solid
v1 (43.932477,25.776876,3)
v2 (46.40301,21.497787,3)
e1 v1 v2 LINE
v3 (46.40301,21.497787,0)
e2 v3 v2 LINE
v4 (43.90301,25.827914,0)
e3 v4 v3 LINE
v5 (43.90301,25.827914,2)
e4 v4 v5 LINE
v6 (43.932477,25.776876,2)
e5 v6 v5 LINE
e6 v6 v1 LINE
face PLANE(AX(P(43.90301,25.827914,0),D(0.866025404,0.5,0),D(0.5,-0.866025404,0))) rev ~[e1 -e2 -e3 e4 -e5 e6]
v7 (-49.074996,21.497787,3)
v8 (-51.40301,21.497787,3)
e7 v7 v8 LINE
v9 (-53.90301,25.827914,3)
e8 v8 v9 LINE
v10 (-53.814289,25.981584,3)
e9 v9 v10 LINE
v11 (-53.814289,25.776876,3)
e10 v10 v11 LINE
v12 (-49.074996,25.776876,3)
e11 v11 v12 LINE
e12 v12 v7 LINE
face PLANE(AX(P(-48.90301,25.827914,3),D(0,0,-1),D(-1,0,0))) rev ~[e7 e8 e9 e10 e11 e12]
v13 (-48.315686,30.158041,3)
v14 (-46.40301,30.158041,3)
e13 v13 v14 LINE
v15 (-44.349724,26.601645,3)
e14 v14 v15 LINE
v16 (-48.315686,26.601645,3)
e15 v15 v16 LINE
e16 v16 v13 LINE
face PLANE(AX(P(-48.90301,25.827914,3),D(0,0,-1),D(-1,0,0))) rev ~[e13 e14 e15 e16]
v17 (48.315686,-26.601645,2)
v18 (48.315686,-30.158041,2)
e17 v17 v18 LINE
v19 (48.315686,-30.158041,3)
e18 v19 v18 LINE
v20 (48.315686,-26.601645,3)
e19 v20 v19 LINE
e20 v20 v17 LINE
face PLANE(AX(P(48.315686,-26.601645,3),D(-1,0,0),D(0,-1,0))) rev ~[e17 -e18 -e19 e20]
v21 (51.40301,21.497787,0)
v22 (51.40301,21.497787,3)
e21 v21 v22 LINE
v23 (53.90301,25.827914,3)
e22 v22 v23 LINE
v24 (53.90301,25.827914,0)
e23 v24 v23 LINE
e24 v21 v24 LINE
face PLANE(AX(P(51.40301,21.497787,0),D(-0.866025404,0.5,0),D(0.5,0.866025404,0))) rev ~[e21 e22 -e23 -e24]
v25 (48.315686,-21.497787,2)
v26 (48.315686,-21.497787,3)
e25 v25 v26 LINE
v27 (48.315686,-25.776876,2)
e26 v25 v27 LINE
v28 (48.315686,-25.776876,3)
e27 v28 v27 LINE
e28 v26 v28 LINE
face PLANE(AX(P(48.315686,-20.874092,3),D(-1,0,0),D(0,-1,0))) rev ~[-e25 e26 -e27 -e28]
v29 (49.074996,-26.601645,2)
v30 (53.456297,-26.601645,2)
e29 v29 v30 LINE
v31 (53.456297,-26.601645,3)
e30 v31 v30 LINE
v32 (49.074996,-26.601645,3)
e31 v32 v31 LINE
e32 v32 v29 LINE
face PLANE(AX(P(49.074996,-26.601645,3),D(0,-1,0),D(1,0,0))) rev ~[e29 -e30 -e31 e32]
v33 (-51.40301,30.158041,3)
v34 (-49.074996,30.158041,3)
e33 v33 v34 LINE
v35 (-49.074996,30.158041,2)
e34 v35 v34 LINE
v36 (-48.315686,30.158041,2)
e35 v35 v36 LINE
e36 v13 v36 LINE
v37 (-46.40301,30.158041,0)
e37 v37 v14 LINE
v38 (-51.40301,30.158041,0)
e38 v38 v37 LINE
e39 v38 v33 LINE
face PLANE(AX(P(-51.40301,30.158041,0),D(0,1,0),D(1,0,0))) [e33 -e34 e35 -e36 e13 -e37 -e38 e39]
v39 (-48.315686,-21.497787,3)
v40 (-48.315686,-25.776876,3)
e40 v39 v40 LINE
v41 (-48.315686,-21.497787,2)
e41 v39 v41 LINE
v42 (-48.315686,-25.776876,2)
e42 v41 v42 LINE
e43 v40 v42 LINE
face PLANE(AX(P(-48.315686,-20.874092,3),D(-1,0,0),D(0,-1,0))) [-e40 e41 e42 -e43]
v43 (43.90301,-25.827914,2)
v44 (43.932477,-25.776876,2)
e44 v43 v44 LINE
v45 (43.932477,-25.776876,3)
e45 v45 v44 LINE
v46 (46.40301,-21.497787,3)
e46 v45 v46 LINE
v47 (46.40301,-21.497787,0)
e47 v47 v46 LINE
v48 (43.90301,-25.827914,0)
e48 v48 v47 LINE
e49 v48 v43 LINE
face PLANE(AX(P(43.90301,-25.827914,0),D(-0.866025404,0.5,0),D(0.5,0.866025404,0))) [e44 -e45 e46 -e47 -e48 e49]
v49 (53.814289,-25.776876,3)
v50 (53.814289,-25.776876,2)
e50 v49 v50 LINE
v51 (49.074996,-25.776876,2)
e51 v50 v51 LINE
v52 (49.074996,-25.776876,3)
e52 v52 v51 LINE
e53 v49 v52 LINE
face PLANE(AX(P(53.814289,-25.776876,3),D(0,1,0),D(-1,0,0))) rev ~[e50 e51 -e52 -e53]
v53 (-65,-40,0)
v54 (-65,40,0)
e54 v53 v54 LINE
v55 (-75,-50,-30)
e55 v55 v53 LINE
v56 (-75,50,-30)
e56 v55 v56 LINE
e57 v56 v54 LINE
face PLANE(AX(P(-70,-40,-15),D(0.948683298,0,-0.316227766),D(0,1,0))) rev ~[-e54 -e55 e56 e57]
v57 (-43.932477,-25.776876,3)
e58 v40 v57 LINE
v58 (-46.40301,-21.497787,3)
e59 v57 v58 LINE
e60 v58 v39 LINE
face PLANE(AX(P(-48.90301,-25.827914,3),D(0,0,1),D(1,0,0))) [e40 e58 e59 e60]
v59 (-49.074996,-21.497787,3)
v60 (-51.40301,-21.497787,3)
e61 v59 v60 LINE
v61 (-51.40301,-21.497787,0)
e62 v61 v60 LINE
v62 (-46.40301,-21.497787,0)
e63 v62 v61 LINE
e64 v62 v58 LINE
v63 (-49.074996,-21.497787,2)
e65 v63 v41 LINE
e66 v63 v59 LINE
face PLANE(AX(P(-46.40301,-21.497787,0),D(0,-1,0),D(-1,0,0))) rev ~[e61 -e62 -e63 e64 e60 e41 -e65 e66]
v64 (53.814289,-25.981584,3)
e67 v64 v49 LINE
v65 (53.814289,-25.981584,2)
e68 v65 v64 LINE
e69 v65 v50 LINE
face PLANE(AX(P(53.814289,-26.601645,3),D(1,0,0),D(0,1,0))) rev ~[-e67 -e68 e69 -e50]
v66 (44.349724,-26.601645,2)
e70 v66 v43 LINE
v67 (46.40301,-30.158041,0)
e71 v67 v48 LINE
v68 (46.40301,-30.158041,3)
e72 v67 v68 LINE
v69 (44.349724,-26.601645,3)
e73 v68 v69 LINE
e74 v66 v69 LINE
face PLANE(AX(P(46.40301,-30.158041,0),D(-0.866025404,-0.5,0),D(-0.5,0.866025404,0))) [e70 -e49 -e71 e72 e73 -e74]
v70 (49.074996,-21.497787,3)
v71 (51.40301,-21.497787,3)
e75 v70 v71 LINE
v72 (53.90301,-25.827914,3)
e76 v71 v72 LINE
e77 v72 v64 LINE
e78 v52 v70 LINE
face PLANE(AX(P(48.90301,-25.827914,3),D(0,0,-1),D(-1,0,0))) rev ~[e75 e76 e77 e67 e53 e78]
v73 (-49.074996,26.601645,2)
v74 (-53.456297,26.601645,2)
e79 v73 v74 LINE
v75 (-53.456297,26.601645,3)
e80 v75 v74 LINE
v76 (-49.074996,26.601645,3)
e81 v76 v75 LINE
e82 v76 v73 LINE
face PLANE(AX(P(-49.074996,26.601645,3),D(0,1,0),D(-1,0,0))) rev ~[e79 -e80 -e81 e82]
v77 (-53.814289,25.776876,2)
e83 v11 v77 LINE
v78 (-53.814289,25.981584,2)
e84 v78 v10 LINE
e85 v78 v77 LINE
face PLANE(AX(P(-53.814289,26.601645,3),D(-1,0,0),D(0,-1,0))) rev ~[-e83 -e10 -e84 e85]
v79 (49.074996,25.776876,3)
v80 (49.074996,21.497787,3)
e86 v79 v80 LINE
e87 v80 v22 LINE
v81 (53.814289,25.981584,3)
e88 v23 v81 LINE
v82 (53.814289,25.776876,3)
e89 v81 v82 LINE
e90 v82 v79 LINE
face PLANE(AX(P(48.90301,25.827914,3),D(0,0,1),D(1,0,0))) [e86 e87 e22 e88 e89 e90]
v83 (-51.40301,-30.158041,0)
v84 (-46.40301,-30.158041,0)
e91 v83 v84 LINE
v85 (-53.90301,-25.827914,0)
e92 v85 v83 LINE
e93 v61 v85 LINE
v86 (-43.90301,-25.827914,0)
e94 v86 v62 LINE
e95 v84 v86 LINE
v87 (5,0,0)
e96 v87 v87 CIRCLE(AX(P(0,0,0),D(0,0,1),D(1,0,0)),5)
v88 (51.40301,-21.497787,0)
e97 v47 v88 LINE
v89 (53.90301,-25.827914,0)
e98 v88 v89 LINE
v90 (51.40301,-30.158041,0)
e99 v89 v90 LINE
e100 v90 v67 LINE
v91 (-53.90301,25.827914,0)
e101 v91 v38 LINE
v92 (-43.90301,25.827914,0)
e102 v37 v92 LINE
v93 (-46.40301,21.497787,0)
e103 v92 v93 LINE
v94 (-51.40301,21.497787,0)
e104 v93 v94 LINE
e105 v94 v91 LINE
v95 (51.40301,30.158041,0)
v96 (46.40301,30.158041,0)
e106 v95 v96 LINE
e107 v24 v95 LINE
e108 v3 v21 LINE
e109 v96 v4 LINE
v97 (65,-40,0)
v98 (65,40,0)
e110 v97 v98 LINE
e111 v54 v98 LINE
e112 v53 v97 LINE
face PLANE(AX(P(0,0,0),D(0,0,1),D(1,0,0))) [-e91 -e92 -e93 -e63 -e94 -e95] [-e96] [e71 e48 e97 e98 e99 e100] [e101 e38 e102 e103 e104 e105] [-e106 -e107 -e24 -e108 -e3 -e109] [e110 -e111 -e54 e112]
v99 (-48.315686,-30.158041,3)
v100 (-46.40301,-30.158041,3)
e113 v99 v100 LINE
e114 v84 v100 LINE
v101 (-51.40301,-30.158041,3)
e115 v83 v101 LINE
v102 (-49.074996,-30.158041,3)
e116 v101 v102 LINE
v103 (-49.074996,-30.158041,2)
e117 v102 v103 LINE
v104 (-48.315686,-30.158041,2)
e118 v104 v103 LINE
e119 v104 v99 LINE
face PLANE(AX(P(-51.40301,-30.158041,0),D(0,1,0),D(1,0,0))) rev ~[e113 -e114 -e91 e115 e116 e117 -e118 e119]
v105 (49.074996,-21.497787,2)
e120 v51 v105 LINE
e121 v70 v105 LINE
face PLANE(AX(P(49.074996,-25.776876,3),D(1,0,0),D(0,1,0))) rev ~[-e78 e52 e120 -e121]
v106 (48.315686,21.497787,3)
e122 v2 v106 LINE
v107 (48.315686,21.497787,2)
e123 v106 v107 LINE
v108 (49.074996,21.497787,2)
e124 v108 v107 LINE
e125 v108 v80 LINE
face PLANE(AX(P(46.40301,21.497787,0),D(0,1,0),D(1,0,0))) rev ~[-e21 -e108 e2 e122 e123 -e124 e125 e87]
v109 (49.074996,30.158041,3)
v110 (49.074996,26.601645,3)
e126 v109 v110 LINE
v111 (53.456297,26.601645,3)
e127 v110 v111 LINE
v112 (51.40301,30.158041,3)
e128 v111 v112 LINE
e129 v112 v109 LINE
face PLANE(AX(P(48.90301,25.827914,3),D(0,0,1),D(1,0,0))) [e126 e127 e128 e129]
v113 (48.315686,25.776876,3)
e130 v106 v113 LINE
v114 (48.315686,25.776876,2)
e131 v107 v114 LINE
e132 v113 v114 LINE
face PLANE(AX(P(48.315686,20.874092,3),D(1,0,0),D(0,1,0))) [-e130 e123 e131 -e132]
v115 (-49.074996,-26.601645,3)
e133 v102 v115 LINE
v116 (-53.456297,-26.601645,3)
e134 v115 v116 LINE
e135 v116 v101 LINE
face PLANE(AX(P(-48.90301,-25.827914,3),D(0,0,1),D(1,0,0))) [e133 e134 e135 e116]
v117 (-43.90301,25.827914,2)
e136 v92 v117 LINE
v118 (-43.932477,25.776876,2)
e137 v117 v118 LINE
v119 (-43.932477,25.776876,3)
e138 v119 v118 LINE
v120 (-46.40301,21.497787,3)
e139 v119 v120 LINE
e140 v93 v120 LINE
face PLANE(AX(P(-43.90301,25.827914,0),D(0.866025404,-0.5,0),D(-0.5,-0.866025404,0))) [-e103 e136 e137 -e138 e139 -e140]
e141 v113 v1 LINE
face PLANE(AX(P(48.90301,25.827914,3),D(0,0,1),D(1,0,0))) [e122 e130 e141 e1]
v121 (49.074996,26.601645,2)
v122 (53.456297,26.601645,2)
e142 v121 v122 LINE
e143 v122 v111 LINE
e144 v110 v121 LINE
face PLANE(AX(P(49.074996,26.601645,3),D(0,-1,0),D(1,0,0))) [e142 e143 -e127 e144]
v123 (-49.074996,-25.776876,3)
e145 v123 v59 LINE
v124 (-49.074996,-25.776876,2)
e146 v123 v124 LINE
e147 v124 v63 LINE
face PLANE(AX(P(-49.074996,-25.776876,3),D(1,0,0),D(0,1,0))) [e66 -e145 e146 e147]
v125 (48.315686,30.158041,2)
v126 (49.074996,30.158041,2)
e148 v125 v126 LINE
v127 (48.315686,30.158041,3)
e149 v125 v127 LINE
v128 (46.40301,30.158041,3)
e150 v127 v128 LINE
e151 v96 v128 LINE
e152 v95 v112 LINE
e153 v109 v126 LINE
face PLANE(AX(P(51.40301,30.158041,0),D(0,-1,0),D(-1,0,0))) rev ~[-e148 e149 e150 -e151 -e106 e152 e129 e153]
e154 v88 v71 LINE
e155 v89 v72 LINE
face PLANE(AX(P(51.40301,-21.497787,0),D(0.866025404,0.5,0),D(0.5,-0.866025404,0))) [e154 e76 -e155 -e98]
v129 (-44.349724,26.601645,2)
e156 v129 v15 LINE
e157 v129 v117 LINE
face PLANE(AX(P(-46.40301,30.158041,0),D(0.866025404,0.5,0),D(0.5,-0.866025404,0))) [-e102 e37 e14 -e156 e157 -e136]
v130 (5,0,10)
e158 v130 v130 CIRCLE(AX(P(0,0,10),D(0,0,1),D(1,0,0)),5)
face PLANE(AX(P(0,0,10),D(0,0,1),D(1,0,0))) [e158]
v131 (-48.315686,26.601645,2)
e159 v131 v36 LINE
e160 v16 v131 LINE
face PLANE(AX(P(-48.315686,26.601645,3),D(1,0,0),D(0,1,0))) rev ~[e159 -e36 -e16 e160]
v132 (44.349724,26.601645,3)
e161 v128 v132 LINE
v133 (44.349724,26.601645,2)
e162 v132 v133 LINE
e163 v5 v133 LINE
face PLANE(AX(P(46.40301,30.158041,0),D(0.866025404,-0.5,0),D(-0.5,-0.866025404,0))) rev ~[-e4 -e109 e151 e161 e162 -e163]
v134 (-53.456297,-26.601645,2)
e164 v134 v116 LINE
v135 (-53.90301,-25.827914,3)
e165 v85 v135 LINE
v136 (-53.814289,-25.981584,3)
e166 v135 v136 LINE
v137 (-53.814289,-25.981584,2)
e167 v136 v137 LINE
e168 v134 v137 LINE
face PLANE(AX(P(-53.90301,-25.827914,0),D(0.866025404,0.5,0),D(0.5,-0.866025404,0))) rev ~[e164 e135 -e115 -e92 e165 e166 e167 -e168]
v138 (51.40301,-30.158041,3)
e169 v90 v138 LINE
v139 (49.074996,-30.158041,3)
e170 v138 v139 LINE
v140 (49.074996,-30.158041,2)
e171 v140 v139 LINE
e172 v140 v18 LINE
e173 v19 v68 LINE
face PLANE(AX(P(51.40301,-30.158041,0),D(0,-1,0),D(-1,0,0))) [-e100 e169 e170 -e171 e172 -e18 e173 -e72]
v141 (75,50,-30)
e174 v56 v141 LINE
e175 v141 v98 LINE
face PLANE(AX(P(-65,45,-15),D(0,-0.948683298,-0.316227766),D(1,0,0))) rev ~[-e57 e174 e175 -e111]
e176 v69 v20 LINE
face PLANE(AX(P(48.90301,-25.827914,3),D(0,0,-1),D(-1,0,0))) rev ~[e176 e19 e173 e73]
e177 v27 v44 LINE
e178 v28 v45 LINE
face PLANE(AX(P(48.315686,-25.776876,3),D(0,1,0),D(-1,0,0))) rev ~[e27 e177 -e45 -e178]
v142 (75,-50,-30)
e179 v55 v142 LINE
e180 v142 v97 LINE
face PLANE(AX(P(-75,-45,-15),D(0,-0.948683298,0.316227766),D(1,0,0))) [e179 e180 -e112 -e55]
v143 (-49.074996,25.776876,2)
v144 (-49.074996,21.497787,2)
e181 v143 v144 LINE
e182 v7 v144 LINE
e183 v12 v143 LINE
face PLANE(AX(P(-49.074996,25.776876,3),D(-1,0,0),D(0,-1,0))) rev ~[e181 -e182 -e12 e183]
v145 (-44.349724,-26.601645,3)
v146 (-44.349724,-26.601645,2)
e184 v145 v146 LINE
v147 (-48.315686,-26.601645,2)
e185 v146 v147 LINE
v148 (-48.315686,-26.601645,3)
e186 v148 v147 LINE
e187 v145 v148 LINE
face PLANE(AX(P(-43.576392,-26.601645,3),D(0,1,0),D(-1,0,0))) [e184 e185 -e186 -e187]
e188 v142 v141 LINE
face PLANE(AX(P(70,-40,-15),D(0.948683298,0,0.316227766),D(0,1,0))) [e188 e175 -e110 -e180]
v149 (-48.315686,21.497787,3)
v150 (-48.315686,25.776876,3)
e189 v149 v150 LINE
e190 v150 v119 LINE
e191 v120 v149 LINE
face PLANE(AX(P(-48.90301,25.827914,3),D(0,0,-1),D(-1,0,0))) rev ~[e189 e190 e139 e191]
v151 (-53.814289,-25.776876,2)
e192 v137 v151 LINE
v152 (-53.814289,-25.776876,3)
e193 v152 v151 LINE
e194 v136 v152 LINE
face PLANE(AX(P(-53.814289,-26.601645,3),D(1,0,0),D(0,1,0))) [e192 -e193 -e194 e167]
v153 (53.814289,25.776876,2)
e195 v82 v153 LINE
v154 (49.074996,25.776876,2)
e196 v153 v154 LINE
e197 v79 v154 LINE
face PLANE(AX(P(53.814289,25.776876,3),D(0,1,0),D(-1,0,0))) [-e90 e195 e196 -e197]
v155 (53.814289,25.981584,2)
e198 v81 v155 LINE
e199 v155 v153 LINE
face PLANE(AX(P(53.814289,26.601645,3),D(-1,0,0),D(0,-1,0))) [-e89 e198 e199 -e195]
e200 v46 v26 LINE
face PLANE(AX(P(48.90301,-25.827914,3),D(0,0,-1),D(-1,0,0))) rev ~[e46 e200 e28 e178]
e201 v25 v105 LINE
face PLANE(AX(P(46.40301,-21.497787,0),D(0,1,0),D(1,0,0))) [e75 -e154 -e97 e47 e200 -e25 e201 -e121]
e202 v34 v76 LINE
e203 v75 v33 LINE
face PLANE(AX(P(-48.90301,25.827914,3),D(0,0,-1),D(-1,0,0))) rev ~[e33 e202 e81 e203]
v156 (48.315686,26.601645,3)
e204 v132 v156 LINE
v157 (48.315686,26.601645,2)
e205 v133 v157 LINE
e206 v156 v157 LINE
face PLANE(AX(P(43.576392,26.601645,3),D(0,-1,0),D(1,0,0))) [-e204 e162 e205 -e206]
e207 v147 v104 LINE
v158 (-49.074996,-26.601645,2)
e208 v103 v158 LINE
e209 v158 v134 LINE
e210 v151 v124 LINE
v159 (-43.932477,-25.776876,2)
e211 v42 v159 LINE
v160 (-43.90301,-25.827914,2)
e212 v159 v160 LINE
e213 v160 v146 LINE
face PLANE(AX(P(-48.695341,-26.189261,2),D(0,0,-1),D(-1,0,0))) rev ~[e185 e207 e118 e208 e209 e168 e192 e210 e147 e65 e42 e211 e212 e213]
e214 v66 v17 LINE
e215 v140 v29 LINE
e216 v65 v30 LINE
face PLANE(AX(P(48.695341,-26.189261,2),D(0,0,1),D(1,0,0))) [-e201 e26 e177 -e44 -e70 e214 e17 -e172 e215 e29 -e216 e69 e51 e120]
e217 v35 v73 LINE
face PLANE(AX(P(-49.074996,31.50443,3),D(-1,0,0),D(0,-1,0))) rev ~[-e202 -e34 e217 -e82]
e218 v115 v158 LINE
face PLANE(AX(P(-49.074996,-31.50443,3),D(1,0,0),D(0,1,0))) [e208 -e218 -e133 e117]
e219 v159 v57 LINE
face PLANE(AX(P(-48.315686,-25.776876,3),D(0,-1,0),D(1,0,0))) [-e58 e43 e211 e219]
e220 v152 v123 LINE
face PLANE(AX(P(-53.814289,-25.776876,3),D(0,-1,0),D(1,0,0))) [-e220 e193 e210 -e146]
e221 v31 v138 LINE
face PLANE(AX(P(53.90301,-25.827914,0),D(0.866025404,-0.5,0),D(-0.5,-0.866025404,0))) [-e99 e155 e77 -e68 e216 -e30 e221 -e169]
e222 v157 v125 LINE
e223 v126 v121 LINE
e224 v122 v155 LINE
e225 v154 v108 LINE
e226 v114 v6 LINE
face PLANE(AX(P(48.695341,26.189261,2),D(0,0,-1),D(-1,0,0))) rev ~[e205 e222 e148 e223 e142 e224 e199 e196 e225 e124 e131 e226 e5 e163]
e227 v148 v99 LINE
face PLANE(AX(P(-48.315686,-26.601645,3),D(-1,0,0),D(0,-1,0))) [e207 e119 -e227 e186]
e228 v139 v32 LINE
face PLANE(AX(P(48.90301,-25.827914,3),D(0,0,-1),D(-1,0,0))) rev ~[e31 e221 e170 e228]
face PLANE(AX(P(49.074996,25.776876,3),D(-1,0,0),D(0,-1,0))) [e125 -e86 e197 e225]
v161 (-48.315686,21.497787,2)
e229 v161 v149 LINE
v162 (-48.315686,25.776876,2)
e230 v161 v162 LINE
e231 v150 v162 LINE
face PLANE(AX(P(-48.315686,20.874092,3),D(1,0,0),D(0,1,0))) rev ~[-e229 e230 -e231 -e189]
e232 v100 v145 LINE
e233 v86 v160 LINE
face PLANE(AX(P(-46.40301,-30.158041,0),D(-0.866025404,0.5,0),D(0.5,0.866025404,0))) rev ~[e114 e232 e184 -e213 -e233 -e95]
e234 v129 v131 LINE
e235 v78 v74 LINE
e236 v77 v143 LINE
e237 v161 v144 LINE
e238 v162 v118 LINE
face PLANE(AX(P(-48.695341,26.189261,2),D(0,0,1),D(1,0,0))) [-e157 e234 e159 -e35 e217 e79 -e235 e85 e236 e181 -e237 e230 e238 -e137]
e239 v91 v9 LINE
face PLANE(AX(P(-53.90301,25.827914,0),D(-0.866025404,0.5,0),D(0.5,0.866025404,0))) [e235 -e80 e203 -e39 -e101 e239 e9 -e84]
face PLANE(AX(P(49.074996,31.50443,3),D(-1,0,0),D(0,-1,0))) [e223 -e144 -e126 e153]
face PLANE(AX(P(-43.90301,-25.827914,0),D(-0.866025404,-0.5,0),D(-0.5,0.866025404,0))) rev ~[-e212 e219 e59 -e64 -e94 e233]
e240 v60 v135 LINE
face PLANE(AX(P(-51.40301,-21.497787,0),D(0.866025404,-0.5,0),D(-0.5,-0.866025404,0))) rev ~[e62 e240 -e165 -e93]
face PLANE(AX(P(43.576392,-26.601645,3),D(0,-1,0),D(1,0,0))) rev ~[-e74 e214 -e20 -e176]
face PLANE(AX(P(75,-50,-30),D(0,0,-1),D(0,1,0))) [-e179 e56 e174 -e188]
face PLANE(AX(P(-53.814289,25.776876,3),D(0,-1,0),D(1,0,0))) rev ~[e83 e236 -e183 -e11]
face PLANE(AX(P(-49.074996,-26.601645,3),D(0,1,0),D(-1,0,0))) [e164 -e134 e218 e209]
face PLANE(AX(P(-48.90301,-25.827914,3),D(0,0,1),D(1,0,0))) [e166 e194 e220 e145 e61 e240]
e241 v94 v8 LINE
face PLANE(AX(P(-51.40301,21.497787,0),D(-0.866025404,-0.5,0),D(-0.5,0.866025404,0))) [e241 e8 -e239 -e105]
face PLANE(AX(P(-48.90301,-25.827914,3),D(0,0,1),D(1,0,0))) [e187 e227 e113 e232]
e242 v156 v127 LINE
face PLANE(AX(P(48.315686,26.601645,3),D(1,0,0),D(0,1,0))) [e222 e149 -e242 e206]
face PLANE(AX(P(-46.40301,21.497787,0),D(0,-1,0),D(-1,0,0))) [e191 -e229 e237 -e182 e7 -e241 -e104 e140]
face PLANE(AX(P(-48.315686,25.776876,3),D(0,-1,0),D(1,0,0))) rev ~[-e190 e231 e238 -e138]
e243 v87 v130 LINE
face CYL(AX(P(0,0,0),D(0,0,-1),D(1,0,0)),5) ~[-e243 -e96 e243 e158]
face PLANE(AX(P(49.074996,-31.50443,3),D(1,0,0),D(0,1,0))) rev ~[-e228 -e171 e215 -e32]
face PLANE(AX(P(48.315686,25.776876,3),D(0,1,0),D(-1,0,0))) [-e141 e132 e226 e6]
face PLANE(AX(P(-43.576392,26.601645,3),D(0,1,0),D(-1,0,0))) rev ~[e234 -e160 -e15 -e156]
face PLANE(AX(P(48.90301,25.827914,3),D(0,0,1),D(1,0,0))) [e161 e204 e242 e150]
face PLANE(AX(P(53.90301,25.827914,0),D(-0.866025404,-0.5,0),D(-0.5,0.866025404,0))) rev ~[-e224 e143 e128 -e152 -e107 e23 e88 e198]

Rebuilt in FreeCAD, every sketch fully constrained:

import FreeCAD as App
import Part
import Sketcher
Q = App.Units.Quantity


def edges_at(feature, points):
    """Names of the edges that pass closest to the given points."""
    edges = feature.Shape.Edges
    near = lambda p: min(range(len(edges)), key=lambda i: edges[i].distToShape(Part.Vertex(*p))[0])
    return sorted({f"Edge{near(p) + 1}" for p in points})

doc = App.newDocument("Part")
body = doc.addObject("PartDesign::Body", "Body")

sketch1 = body.newObject("Sketcher::SketchObject", "Sketch")
sketch1.AttachmentSupport = (doc.getObject("XY_Plane"), [""])
sketch1.MapMode = "FlatFace"
sketch1.addGeometry(Part.LineSegment(App.Vector(-75, 50, 0), App.Vector(-75, -50, 0)), False)
sketch1.addGeometry(Part.LineSegment(App.Vector(-75, -50, 0), App.Vector(75, -50, 0)), False)
sketch1.addGeometry(Part.LineSegment(App.Vector(75, -50, 0), App.Vector(75, 50, 0)), False)
sketch1.addGeometry(Part.LineSegment(App.Vector(75, 50, 0), App.Vector(-75, 50, 0)), False)
sketch1.addConstraint(Sketcher.Constraint("Coincident", 0, 2, 1, 1))
sketch1.addConstraint(Sketcher.Constraint("Coincident", 1, 2, 2, 1))
sketch1.addConstraint(Sketcher.Constraint("Coincident", 2, 2, 3, 1))
sketch1.addConstraint(Sketcher.Constraint("Coincident", 3, 2, 0, 1))
sketch1.addConstraint(Sketcher.Constraint("Vertical", 0))
sketch1.addConstraint(Sketcher.Constraint("Horizontal", 1))
sketch1.addConstraint(Sketcher.Constraint("Vertical", 2))
sketch1.addConstraint(Sketcher.Constraint("Horizontal", 3))
sketch1.addConstraint(Sketcher.Constraint("Symmetric", 0, 2, 2, 2, -1, 1))
sketch1.addConstraint(Sketcher.Constraint("DistanceX", 1, 1, 1, 2, Q("150 mm")))
sketch1.addConstraint(Sketcher.Constraint("DistanceY", 0, 2, 0, 1, Q("100 mm")))
pad1 = body.newObject("PartDesign::Pad", "Pad")
pad1.Profile = sketch1
pad1.Length = 50
pad1.Reversed = True
doc.recompute()

chamfer = body.newObject("PartDesign::Chamfer", "Chamfer")
chamfer.Base = (pad1, edges_at(pad1, [(0, -50, 0)]))
chamfer.ChamferType = "Two distances"
chamfer.Size = 30
chamfer.Size2 = 10
doc.recompute()

chamfer2 = body.newObject("PartDesign::Chamfer", "Chamfer001")
chamfer2.Base = (chamfer, edges_at(chamfer, [(-75, 5, 0)]))
chamfer2.ChamferType = "Two distances"
chamfer2.Size = 30
chamfer2.Size2 = 10
doc.recompute()

chamfer3 = body.newObject("PartDesign::Chamfer", "Chamfer002")
chamfer3.Base = (chamfer2, edges_at(chamfer2, [(5, 50, 0)]))
chamfer3.ChamferType = "Two distances"
chamfer3.Size = 30
chamfer3.Size2 = 10
doc.recompute()

chamfer4 = body.newObject("PartDesign::Chamfer", "Chamfer003")
chamfer4.Base = (chamfer3, edges_at(chamfer3, [(75, 0, 0)]))
chamfer4.ChamferType = "Two distances"
chamfer4.Size = 30
chamfer4.Size2 = 10

sketch2 = body.newObject("Sketcher::SketchObject", "Sketch001")
sketch2.AttachmentSupport = (doc.getObject("YZ_Plane"), [""])
sketch2.MapMode = "FlatFace"
sketch2.AttachmentOffset = App.Placement(App.Vector(0, 0, 75), App.Rotation())
sketch2.addGeometry(Part.LineSegment(App.Vector(50, -30, 0), App.Vector(-50, -30, 0)), False)
sketch2.addGeometry(Part.LineSegment(App.Vector(-50, -30, 0), App.Vector(-82, -66, 0)), False)
sketch2.addGeometry(Part.LineSegment(App.Vector(-82, -66, 0), App.Vector(63, -81, 0)), False)
sketch2.addGeometry(Part.LineSegment(App.Vector(63, -81, 0), App.Vector(50, -30, 0)), False)
sketch2.addConstraint(Sketcher.Constraint("Coincident", 0, 2, 1, 1))
sketch2.addConstraint(Sketcher.Constraint("Coincident", 1, 2, 2, 1))
sketch2.addConstraint(Sketcher.Constraint("Coincident", 2, 2, 3, 1))
sketch2.addConstraint(Sketcher.Constraint("Coincident", 3, 2, 0, 1))
sketch2.addConstraint(Sketcher.Constraint("Horizontal", 0))
sketch2.addConstraint(Sketcher.Constraint("DistanceX", 0, 2, 0, 1, Q("100 mm")))
sketch2.addConstraint(Sketcher.Constraint("DistanceX", 0, 2, -1, 1, Q("50 mm")))
sketch2.addConstraint(Sketcher.Constraint("DistanceY", 0, 2, -1, 1, Q("30 mm")))
sketch2.addConstraint(Sketcher.Constraint("Distance", 2, Q("145.471799 mm")))
sketch2.addConstraint(Sketcher.Constraint("Distance", 1, Q("48.031629 mm")))
sketch2.addConstraint(Sketcher.Constraint("Distance", 3, Q("52.868591 mm")))
sketch2.addConstraint(Sketcher.Constraint("DistanceY", 1, 2, -1, 1, Q("65.83849 mm")))
pocket1 = body.newObject("PartDesign::Pocket", "Pocket")
pocket1.Profile = sketch2
pocket1.Length = 282

sketch3 = body.newObject("Sketcher::SketchObject", "Sketch002")
sketch3.AttachmentSupport = (doc.getObject("XY_Plane"), [""])
sketch3.MapMode = "FlatFace"
sketch3.addGeometry(Part.LineSegment(App.Vector(-44, -26, 0), App.Vector(-46, -21, 0)), False)
sketch3.addGeometry(Part.LineSegment(App.Vector(-46, -21, 0), App.Vector(-51, -21, 0)), False)
sketch3.addGeometry(Part.LineSegment(App.Vector(-51, -21, 0), App.Vector(-54, -26, 0)), False)
sketch3.addGeometry(Part.LineSegment(App.Vector(-54, -26, 0), App.Vector(-51, -30, 0)), False)
sketch3.addGeometry(Part.LineSegment(App.Vector(-51, -30, 0), App.Vector(-46, -30, 0)), False)
sketch3.addGeometry(Part.LineSegment(App.Vector(-46, -30, 0), App.Vector(-44, -26, 0)), False)
sketch3.addGeometry(Part.LineSegment(App.Vector(44, 26, 0), App.Vector(46, 21, 0)), False)
sketch3.addGeometry(Part.LineSegment(App.Vector(46, 21, 0), App.Vector(51, 21, 0)), False)
sketch3.addGeometry(Part.LineSegment(App.Vector(51, 21, 0), App.Vector(54, 26, 0)), False)
sketch3.addGeometry(Part.LineSegment(App.Vector(54, 26, 0), App.Vector(51, 30, 0)), False)
sketch3.addGeometry(Part.LineSegment(App.Vector(51, 30, 0), App.Vector(46, 30, 0)), False)
sketch3.addGeometry(Part.LineSegment(App.Vector(46, 30, 0), App.Vector(44, 26, 0)), False)
sketch3.addGeometry(Part.LineSegment(App.Vector(44, -26, 0), App.Vector(46, -30, 0)), False)
sketch3.addGeometry(Part.LineSegment(App.Vector(46, -30, 0), App.Vector(51, -30, 0)), False)
sketch3.addGeometry(Part.LineSegment(App.Vector(51, -30, 0), App.Vector(54, -26, 0)), False)
sketch3.addGeometry(Part.LineSegment(App.Vector(54, -26, 0), App.Vector(51, -21, 0)), False)
sketch3.addGeometry(Part.LineSegment(App.Vector(51, -21, 0), App.Vector(46, -21, 0)), False)
sketch3.addGeometry(Part.LineSegment(App.Vector(46, -21, 0), App.Vector(44, -26, 0)), False)
sketch3.addGeometry(Part.LineSegment(App.Vector(-51, 21, 0), App.Vector(-46, 21, 0)), False)
sketch3.addGeometry(Part.LineSegment(App.Vector(-46, 21, 0), App.Vector(-44, 26, 0)), False)
sketch3.addGeometry(Part.LineSegment(App.Vector(-44, 26, 0), App.Vector(-46, 30, 0)), False)
sketch3.addGeometry(Part.LineSegment(App.Vector(-46, 30, 0), App.Vector(-51, 30, 0)), False)
sketch3.addGeometry(Part.LineSegment(App.Vector(-51, 30, 0), App.Vector(-54, 26, 0)), False)
sketch3.addGeometry(Part.LineSegment(App.Vector(-54, 26, 0), App.Vector(-51, 21, 0)), False)
sketch3.addConstraint(Sketcher.Constraint("Coincident", 0, 2, 1, 1))
sketch3.addConstraint(Sketcher.Constraint("Coincident", 1, 2, 2, 1))
sketch3.addConstraint(Sketcher.Constraint("Coincident", 2, 2, 3, 1))
sketch3.addConstraint(Sketcher.Constraint("Coincident", 3, 2, 4, 1))
sketch3.addConstraint(Sketcher.Constraint("Coincident", 4, 2, 5, 1))
sketch3.addConstraint(Sketcher.Constraint("Coincident", 5, 2, 0, 1))
sketch3.addConstraint(Sketcher.Constraint("Coincident", 6, 2, 7, 1))
sketch3.addConstraint(Sketcher.Constraint("Coincident", 7, 2, 8, 1))
sketch3.addConstraint(Sketcher.Constraint("Coincident", 8, 2, 9, 1))
sketch3.addConstraint(Sketcher.Constraint("Coincident", 9, 2, 10, 1))
sketch3.addConstraint(Sketcher.Constraint("Coincident", 10, 2, 11, 1))
sketch3.addConstraint(Sketcher.Constraint("Coincident", 11, 2, 6, 1))
sketch3.addConstraint(Sketcher.Constraint("Coincident", 12, 2, 13, 1))
sketch3.addConstraint(Sketcher.Constraint("Coincident", 13, 2, 14, 1))
sketch3.addConstraint(Sketcher.Constraint("Coincident", 14, 2, 15, 1))
sketch3.addConstraint(Sketcher.Constraint("Coincident", 15, 2, 16, 1))
sketch3.addConstraint(Sketcher.Constraint("Coincident", 16, 2, 17, 1))
sketch3.addConstraint(Sketcher.Constraint("Coincident", 17, 2, 12, 1))
sketch3.addConstraint(Sketcher.Constraint("Coincident", 18, 2, 19, 1))
sketch3.addConstraint(Sketcher.Constraint("Coincident", 19, 2, 20, 1))
sketch3.addConstraint(Sketcher.Constraint("Coincident", 20, 2, 21, 1))
sketch3.addConstraint(Sketcher.Constraint("Coincident", 21, 2, 22, 1))
sketch3.addConstraint(Sketcher.Constraint("Coincident", 22, 2, 23, 1))
sketch3.addConstraint(Sketcher.Constraint("Coincident", 23, 2, 18, 1))
sketch3.addConstraint(Sketcher.Constraint("Horizontal", 1))
sketch3.addConstraint(Sketcher.Constraint("Horizontal", 4))
sketch3.addConstraint(Sketcher.Constraint("Horizontal", 7))
sketch3.addConstraint(Sketcher.Constraint("Horizontal", 10))
sketch3.addConstraint(Sketcher.Constraint("Horizontal", 13))
sketch3.addConstraint(Sketcher.Constraint("Horizontal", 16))
sketch3.addConstraint(Sketcher.Constraint("Horizontal", 18))
sketch3.addConstraint(Sketcher.Constraint("Horizontal", 21))
sketch3.addConstraint(Sketcher.Constraint("Symmetric", 0, 2, 6, 2, -1, 1))
sketch3.addConstraint(Sketcher.Constraint("Symmetric", 2, 2, 8, 2, -1, 1))
sketch3.addConstraint(Sketcher.Constraint("Symmetric", 3, 2, 9, 2, -1, 1))
sketch3.addConstraint(Sketcher.Constraint("Symmetric", 5, 2, 11, 2, -1, 1))
sketch3.addConstraint(Sketcher.Constraint("Symmetric", 16, 2, 18, 2, -1, 1))
sketch3.addConstraint(Sketcher.Constraint("Symmetric", 17, 2, 19, 2, -1, 1))
sketch3.addConstraint(Sketcher.Constraint("Symmetric", 12, 2, 20, 2, -1, 1))
sketch3.addConstraint(Sketcher.Constraint("Symmetric", 14, 2, 22, 2, -1, 1))
sketch3.addConstraint(Sketcher.Constraint("Symmetric", 4, 2, 12, 2, -2))
sketch3.addConstraint(Sketcher.Constraint("Symmetric", 2, 2, 14, 2, -2))
sketch3.addConstraint(Sketcher.Constraint("Symmetric", 1, 2, 15, 2, -2))
sketch3.addConstraint(Sketcher.Constraint("Symmetric", 5, 2, 17, 2, -2))
sketch3.addConstraint(Sketcher.Constraint("Parallel", 0, 3))
sketch3.addConstraint(Sketcher.Constraint("Parallel", 2, 5))
sketch3.addConstraint(Sketcher.Constraint("Parallel", 5, 8))
sketch3.addConstraint(Sketcher.Constraint("Parallel", 8, 11))
sketch3.addConstraint(Sketcher.Constraint("Parallel", 9, 12))
sketch3.addConstraint(Sketcher.Constraint("Parallel", 11, 14))
sketch3.addConstraint(Sketcher.Constraint("Parallel", 14, 17))
sketch3.addConstraint(Sketcher.Constraint("Parallel", 19, 22))
sketch3.addConstraint(Sketcher.Constraint("Parallel", 20, 23))
sketch3.addConstraint(Sketcher.Constraint("Horizontal", 2, 2, 5, 2))
sketch3.addConstraint(Sketcher.Constraint("Vertical", 1, 2, 3, 2))
sketch3.addConstraint(Sketcher.Constraint("DistanceX", 1, 2, 1, 1, Q("5 mm")))
sketch3.addConstraint(Sketcher.Constraint("Angle", 0, Q("120 deg")))
sketch3.addConstraint(Sketcher.Constraint("Distance", 0, Q("5 mm")))
sketch3.addConstraint(Sketcher.Constraint("DistanceY", 5, 2, 6, 2, Q("47.325702 mm")))
sketch3.addConstraint(Sketcher.Constraint("DistanceX", 0, 2, -1, 1, Q("46.40301 mm")))
pad2 = body.newObject("PartDesign::Pad", "Pad001")
pad2.Profile = sketch3
pad2.Length = 3

sketch4 = body.newObject("Sketcher::SketchObject", "Sketch003")
sketch4.AttachmentSupport = (doc.getObject("XY_Plane"), [""])
sketch4.MapMode = "FlatFace"
sketch4.AttachmentOffset = App.Placement(App.Vector(0, 0, 3), App.Rotation())
sketch4.addGeometry(Part.LineSegment(App.Vector(-48.3, -20.9, 0), App.Vector(-49.1, -20.9, 0)), False)
sketch4.addGeometry(Part.LineSegment(App.Vector(-49.1, -20.9, 0), App.Vector(-49.1, -25.8, 0)), False)
sketch4.addGeometry(Part.LineSegment(App.Vector(-49.1, -25.8, 0), App.Vector(-53.8, -25.8, 0)), False)
sketch4.addGeometry(Part.LineSegment(App.Vector(-53.8, -25.8, 0), App.Vector(-53.8, -26.6, 0)), False)
sketch4.addGeometry(Part.LineSegment(App.Vector(-53.8, -26.6, 0), App.Vector(-49.1, -26.6, 0)), False)
sketch4.addGeometry(Part.LineSegment(App.Vector(-49.1, -26.6, 0), App.Vector(-49.1, -31.5, 0)), False)
sketch4.addGeometry(Part.LineSegment(App.Vector(-49.1, -31.5, 0), App.Vector(-48.3, -31.5, 0)), False)
sketch4.addGeometry(Part.LineSegment(App.Vector(-48.3, -31.5, 0), App.Vector(-48.3, -26.6, 0)), False)
sketch4.addGeometry(Part.LineSegment(App.Vector(-48.3, -26.6, 0), App.Vector(-43.6, -26.6, 0)), False)
sketch4.addGeometry(Part.LineSegment(App.Vector(-43.6, -26.6, 0), App.Vector(-43.6, -25.8, 0)), False)
sketch4.addGeometry(Part.LineSegment(App.Vector(-43.6, -25.8, 0), App.Vector(-48.3, -25.8, 0)), False)
sketch4.addGeometry(Part.LineSegment(App.Vector(-48.3, -25.8, 0), App.Vector(-48.3, -20.9, 0)), False)
sketch4.addGeometry(Part.LineSegment(App.Vector(48.3, -26.6, 0), App.Vector(48.3, -31.5, 0)), False)
sketch4.addGeometry(Part.LineSegment(App.Vector(48.3, -31.5, 0), App.Vector(49.1, -31.5, 0)), False)
sketch4.addGeometry(Part.LineSegment(App.Vector(49.1, -31.5, 0), App.Vector(49.1, -26.6, 0)), False)
sketch4.addGeometry(Part.LineSegment(App.Vector(49.1, -26.6, 0), App.Vector(53.8, -26.6, 0)), False)
sketch4.addGeometry(Part.LineSegment(App.Vector(53.8, -26.6, 0), App.Vector(53.8, -25.8, 0)), False)
sketch4.addGeometry(Part.LineSegment(App.Vector(53.8, -25.8, 0), App.Vector(49.1, -25.8, 0)), False)
sketch4.addGeometry(Part.LineSegment(App.Vector(49.1, -25.8, 0), App.Vector(49.1, -20.9, 0)), False)
sketch4.addGeometry(Part.LineSegment(App.Vector(49.1, -20.9, 0), App.Vector(48.3, -20.9, 0)), False)
sketch4.addGeometry(Part.LineSegment(App.Vector(48.3, -20.9, 0), App.Vector(48.3, -25.8, 0)), False)
sketch4.addGeometry(Part.LineSegment(App.Vector(48.3, -25.8, 0), App.Vector(43.6, -25.8, 0)), False)
sketch4.addGeometry(Part.LineSegment(App.Vector(43.6, -25.8, 0), App.Vector(43.6, -26.6, 0)), False)
sketch4.addGeometry(Part.LineSegment(App.Vector(43.6, -26.6, 0), App.Vector(48.3, -26.6, 0)), False)
sketch4.addGeometry(Part.LineSegment(App.Vector(-48.3, 26.6, 0), App.Vector(-48.3, 31.5, 0)), False)
sketch4.addGeometry(Part.LineSegment(App.Vector(-48.3, 31.5, 0), App.Vector(-49.1, 31.5, 0)), False)
sketch4.addGeometry(Part.LineSegment(App.Vector(-49.1, 31.5, 0), App.Vector(-49.1, 26.6, 0)), False)
sketch4.addGeometry(Part.LineSegment(App.Vector(-49.1, 26.6, 0), App.Vector(-53.8, 26.6, 0)), False)
sketch4.addGeometry(Part.LineSegment(App.Vector(-53.8, 26.6, 0), App.Vector(-53.8, 25.8, 0)), False)
sketch4.addGeometry(Part.LineSegment(App.Vector(-53.8, 25.8, 0), App.Vector(-49.1, 25.8, 0)), False)
sketch4.addGeometry(Part.LineSegment(App.Vector(-49.1, 25.8, 0), App.Vector(-49.1, 20.9, 0)), False)
sketch4.addGeometry(Part.LineSegment(App.Vector(-49.1, 20.9, 0), App.Vector(-48.3, 20.9, 0)), False)
sketch4.addGeometry(Part.LineSegment(App.Vector(-48.3, 20.9, 0), App.Vector(-48.3, 25.8, 0)), False)
sketch4.addGeometry(Part.LineSegment(App.Vector(-48.3, 25.8, 0), App.Vector(-43.6, 25.8, 0)), False)
sketch4.addGeometry(Part.LineSegment(App.Vector(-43.6, 25.8, 0), App.Vector(-43.6, 26.6, 0)), False)
sketch4.addGeometry(Part.LineSegment(App.Vector(-43.6, 26.6, 0), App.Vector(-48.3, 26.6, 0)), False)
sketch4.addGeometry(Part.LineSegment(App.Vector(48.3, 20.9, 0), App.Vector(49.1, 20.9, 0)), False)
sketch4.addGeometry(Part.LineSegment(App.Vector(49.1, 20.9, 0), App.Vector(49.1, 25.8, 0)), False)
sketch4.addGeometry(Part.LineSegment(App.Vector(49.1, 25.8, 0), App.Vector(53.8, 25.8, 0)), False)
sketch4.addGeometry(Part.LineSegment(App.Vector(53.8, 25.8, 0), App.Vector(53.8, 26.6, 0)), False)
sketch4.addGeometry(Part.LineSegment(App.Vector(53.8, 26.6, 0), App.Vector(49.1, 26.6, 0)), False)
sketch4.addGeometry(Part.LineSegment(App.Vector(49.1, 26.6, 0), App.Vector(49.1, 31.5, 0)), False)
sketch4.addGeometry(Part.LineSegment(App.Vector(49.1, 31.5, 0), App.Vector(48.3, 31.5, 0)), False)
sketch4.addGeometry(Part.LineSegment(App.Vector(48.3, 31.5, 0), App.Vector(48.3, 26.6, 0)), False)
sketch4.addGeometry(Part.LineSegment(App.Vector(48.3, 26.6, 0), App.Vector(43.6, 26.6, 0)), False)
sketch4.addGeometry(Part.LineSegment(App.Vector(43.6, 26.6, 0), App.Vector(43.6, 25.8, 0)), False)
sketch4.addGeometry(Part.LineSegment(App.Vector(43.6, 25.8, 0), App.Vector(48.3, 25.8, 0)), False)
sketch4.addGeometry(Part.LineSegment(App.Vector(48.3, 25.8, 0), App.Vector(48.3, 20.9, 0)), False)
sketch4.addConstraint(Sketcher.Constraint("Coincident", 0, 2, 1, 1))
sketch4.addConstraint(Sketcher.Constraint("Coincident", 1, 2, 2, 1))
sketch4.addConstraint(Sketcher.Constraint("Coincident", 2, 2, 3, 1))
sketch4.addConstraint(Sketcher.Constraint("Coincident", 3, 2, 4, 1))
sketch4.addConstraint(Sketcher.Constraint("Coincident", 4, 2, 5, 1))
sketch4.addConstraint(Sketcher.Constraint("Coincident", 5, 2, 6, 1))
sketch4.addConstraint(Sketcher.Constraint("Coincident", 6, 2, 7, 1))
sketch4.addConstraint(Sketcher.Constraint("Coincident", 7, 2, 8, 1))
sketch4.addConstraint(Sketcher.Constraint("Coincident", 8, 2, 9, 1))
sketch4.addConstraint(Sketcher.Constraint("Coincident", 9, 2, 10, 1))
sketch4.addConstraint(Sketcher.Constraint("Coincident", 10, 2, 11, 1))
sketch4.addConstraint(Sketcher.Constraint("Coincident", 11, 2, 0, 1))
sketch4.addConstraint(Sketcher.Constraint("Coincident", 12, 2, 13, 1))
sketch4.addConstraint(Sketcher.Constraint("Coincident", 13, 2, 14, 1))
sketch4.addConstraint(Sketcher.Constraint("Coincident", 14, 2, 15, 1))
sketch4.addConstraint(Sketcher.Constraint("Coincident", 15, 2, 16, 1))
sketch4.addConstraint(Sketcher.Constraint("Coincident", 16, 2, 17, 1))
sketch4.addConstraint(Sketcher.Constraint("Coincident", 17, 2, 18, 1))
sketch4.addConstraint(Sketcher.Constraint("Coincident", 18, 2, 19, 1))
sketch4.addConstraint(Sketcher.Constraint("Coincident", 19, 2, 20, 1))
sketch4.addConstraint(Sketcher.Constraint("Coincident", 20, 2, 21, 1))
sketch4.addConstraint(Sketcher.Constraint("Coincident", 21, 2, 22, 1))
sketch4.addConstraint(Sketcher.Constraint("Coincident", 22, 2, 23, 1))
sketch4.addConstraint(Sketcher.Constraint("Coincident", 23, 2, 12, 1))
sketch4.addConstraint(Sketcher.Constraint("Coincident", 24, 2, 25, 1))
sketch4.addConstraint(Sketcher.Constraint("Coincident", 25, 2, 26, 1))
sketch4.addConstraint(Sketcher.Constraint("Coincident", 26, 2, 27, 1))
sketch4.addConstraint(Sketcher.Constraint("Coincident", 27, 2, 28, 1))
sketch4.addConstraint(Sketcher.Constraint("Coincident", 28, 2, 29, 1))
sketch4.addConstraint(Sketcher.Constraint("Coincident", 29, 2, 30, 1))
sketch4.addConstraint(Sketcher.Constraint("Coincident", 30, 2, 31, 1))
sketch4.addConstraint(Sketcher.Constraint("Coincident", 31, 2, 32, 1))
sketch4.addConstraint(Sketcher.Constraint("Coincident", 32, 2, 33, 1))
sketch4.addConstraint(Sketcher.Constraint("Coincident", 33, 2, 34, 1))
sketch4.addConstraint(Sketcher.Constraint("Coincident", 34, 2, 35, 1))
sketch4.addConstraint(Sketcher.Constraint("Coincident", 35, 2, 24, 1))
sketch4.addConstraint(Sketcher.Constraint("Coincident", 36, 2, 37, 1))
sketch4.addConstraint(Sketcher.Constraint("Coincident", 37, 2, 38, 1))
sketch4.addConstraint(Sketcher.Constraint("Coincident", 38, 2, 39, 1))
sketch4.addConstraint(Sketcher.Constraint("Coincident", 39, 2, 40, 1))
sketch4.addConstraint(Sketcher.Constraint("Coincident", 40, 2, 41, 1))
sketch4.addConstraint(Sketcher.Constraint("Coincident", 41, 2, 42, 1))
sketch4.addConstraint(Sketcher.Constraint("Coincident", 42, 2, 43, 1))
sketch4.addConstraint(Sketcher.Constraint("Coincident", 43, 2, 44, 1))
sketch4.addConstraint(Sketcher.Constraint("Coincident", 44, 2, 45, 1))
sketch4.addConstraint(Sketcher.Constraint("Coincident", 45, 2, 46, 1))
sketch4.addConstraint(Sketcher.Constraint("Coincident", 46, 2, 47, 1))
sketch4.addConstraint(Sketcher.Constraint("Coincident", 47, 2, 36, 1))
sketch4.addConstraint(Sketcher.Constraint("Horizontal", 0))
sketch4.addConstraint(Sketcher.Constraint("Vertical", 1))
sketch4.addConstraint(Sketcher.Constraint("Horizontal", 2))
sketch4.addConstraint(Sketcher.Constraint("Vertical", 3))
sketch4.addConstraint(Sketcher.Constraint("Horizontal", 4))
sketch4.addConstraint(Sketcher.Constraint("Vertical", 5))
sketch4.addConstraint(Sketcher.Constraint("Horizontal", 6))
sketch4.addConstraint(Sketcher.Constraint("Vertical", 7))
sketch4.addConstraint(Sketcher.Constraint("Horizontal", 8))
sketch4.addConstraint(Sketcher.Constraint("Vertical", 9))
sketch4.addConstraint(Sketcher.Constraint("Horizontal", 10))
sketch4.addConstraint(Sketcher.Constraint("Vertical", 11))
sketch4.addConstraint(Sketcher.Constraint("Vertical", 12))
sketch4.addConstraint(Sketcher.Constraint("Horizontal", 13))
sketch4.addConstraint(Sketcher.Constraint("Vertical", 14))
sketch4.addConstraint(Sketcher.Constraint("Horizontal", 15))
sketch4.addConstraint(Sketcher.Constraint("Vertical", 16))
sketch4.addConstraint(Sketcher.Constraint("Horizontal", 17))
sketch4.addConstraint(Sketcher.Constraint("Vertical", 18))
sketch4.addConstraint(Sketcher.Constraint("Horizontal", 19))
sketch4.addConstraint(Sketcher.Constraint("Vertical", 20))
sketch4.addConstraint(Sketcher.Constraint("Horizontal", 21))
sketch4.addConstraint(Sketcher.Constraint("Vertical", 22))
sketch4.addConstraint(Sketcher.Constraint("Horizontal", 23))
sketch4.addConstraint(Sketcher.Constraint("Vertical", 24))
sketch4.addConstraint(Sketcher.Constraint("Horizontal", 25))
sketch4.addConstraint(Sketcher.Constraint("Vertical", 26))
sketch4.addConstraint(Sketcher.Constraint("Horizontal", 27))
sketch4.addConstraint(Sketcher.Constraint("Vertical", 28))
sketch4.addConstraint(Sketcher.Constraint("Horizontal", 29))
sketch4.addConstraint(Sketcher.Constraint("Vertical", 30))
sketch4.addConstraint(Sketcher.Constraint("Horizontal", 31))
sketch4.addConstraint(Sketcher.Constraint("Vertical", 32))
sketch4.addConstraint(Sketcher.Constraint("Horizontal", 33))
sketch4.addConstraint(Sketcher.Constraint("Vertical", 34))
sketch4.addConstraint(Sketcher.Constraint("Horizontal", 35))
sketch4.addConstraint(Sketcher.Constraint("Horizontal", 36))
sketch4.addConstraint(Sketcher.Constraint("Vertical", 37))
sketch4.addConstraint(Sketcher.Constraint("Horizontal", 38))
sketch4.addConstraint(Sketcher.Constraint("Vertical", 39))
sketch4.addConstraint(Sketcher.Constraint("Horizontal", 40))
sketch4.addConstraint(Sketcher.Constraint("Vertical", 41))
sketch4.addConstraint(Sketcher.Constraint("Horizontal", 42))
sketch4.addConstraint(Sketcher.Constraint("Vertical", 43))
sketch4.addConstraint(Sketcher.Constraint("Horizontal", 44))
sketch4.addConstraint(Sketcher.Constraint("Vertical", 45))
sketch4.addConstraint(Sketcher.Constraint("Horizontal", 46))
sketch4.addConstraint(Sketcher.Constraint("Vertical", 47))
sketch4.addConstraint(Sketcher.Constraint("Symmetric", 12, 2, 24, 2, -1, 1))
sketch4.addConstraint(Sketcher.Constraint("Symmetric", 14, 2, 26, 2, -1, 1))
sketch4.addConstraint(Sketcher.Constraint("Symmetric", 16, 2, 28, 2, -1, 1))
sketch4.addConstraint(Sketcher.Constraint("Symmetric", 18, 2, 30, 2, -1, 1))
sketch4.addConstraint(Sketcher.Constraint("Symmetric", 20, 2, 32, 2, -1, 1))
sketch4.addConstraint(Sketcher.Constraint("Symmetric", 22, 2, 34, 2, -1, 1))
sketch4.addConstraint(Sketcher.Constraint("Symmetric", 0, 2, 36, 2, -1, 1))
sketch4.addConstraint(Sketcher.Constraint("Symmetric", 2, 2, 38, 2, -1, 1))
sketch4.addConstraint(Sketcher.Constraint("Symmetric", 4, 2, 40, 2, -1, 1))
sketch4.addConstraint(Sketcher.Constraint("Symmetric", 6, 2, 42, 2, -1, 1))
sketch4.addConstraint(Sketcher.Constraint("Symmetric", 8, 2, 44, 2, -1, 1))
sketch4.addConstraint(Sketcher.Constraint("Symmetric", 10, 2, 46, 2, -1, 1))
sketch4.addConstraint(Sketcher.Constraint("Symmetric", 6, 2, 12, 2, -2))
sketch4.addConstraint(Sketcher.Constraint("Symmetric", 4, 2, 14, 2, -2))
sketch4.addConstraint(Sketcher.Constraint("Symmetric", 2, 2, 16, 2, -2))
sketch4.addConstraint(Sketcher.Constraint("Symmetric", 0, 2, 18, 2, -2))
sketch4.addConstraint(Sketcher.Constraint("Symmetric", 10, 2, 20, 2, -2))
sketch4.addConstraint(Sketcher.Constraint("Symmetric", 8, 2, 22, 2, -2))
sketch4.addConstraint(Sketcher.Constraint("Horizontal", 4, 2, 7, 2))
sketch4.addConstraint(Sketcher.Constraint("Horizontal", 2, 2, 9, 2))
sketch4.addConstraint(Sketcher.Constraint("Vertical", 1, 2, 4, 2))
sketch4.addConstraint(Sketcher.Constraint("Vertical", 7, 2, 10, 2))
sketch4.addConstraint(Sketcher.Constraint("Equal", 4, 8))
sketch4.addConstraint(Sketcher.Constraint("Equal", 1, 5))
sketch4.addConstraint(Sketcher.Constraint("DistanceX", 0, 2, 0, 1, Q("0.75931 mm")))
sketch4.addConstraint(Sketcher.Constraint("DistanceY", 3, 2, 3, 1, Q("0.824768 mm")))
sketch4.addConstraint(Sketcher.Constraint("DistanceX", 2, 2, 2, 1, Q("4.739293 mm")))
sketch4.addConstraint(Sketcher.Constraint("DistanceY", 1, 2, 1, 1, Q("4.902785 mm")))
sketch4.addConstraint(Sketcher.Constraint("DistanceY", 0, 2, -1, 1, Q("20.874092 mm")))
sketch4.addConstraint(Sketcher.Constraint("DistanceX", 2, 2, -1, 1, Q("53.814289 mm")))
pocket2 = body.newObject("PartDesign::Pocket", "Pocket001")
pocket2.Profile = sketch4
pocket2.Length = 1

sketch5 = body.newObject("Sketcher::SketchObject", "Sketch004")
sketch5.AttachmentSupport = (doc.getObject("XY_Plane"), [""])
sketch5.MapMode = "FlatFace"
sketch5.addGeometry(Part.Circle(App.Vector(0, 0, 0), App.Vector(0, 0, 1), 5), False)
sketch5.addConstraint(Sketcher.Constraint("Coincident", 0, 3, -1, 1))
sketch5.addConstraint(Sketcher.Constraint("Diameter", 0, Q("10 mm")))
pad3 = body.newObject("PartDesign::Pad", "Pad002")
pad3.Profile = sketch5
pad3.Length = 10

doc.recompute()
